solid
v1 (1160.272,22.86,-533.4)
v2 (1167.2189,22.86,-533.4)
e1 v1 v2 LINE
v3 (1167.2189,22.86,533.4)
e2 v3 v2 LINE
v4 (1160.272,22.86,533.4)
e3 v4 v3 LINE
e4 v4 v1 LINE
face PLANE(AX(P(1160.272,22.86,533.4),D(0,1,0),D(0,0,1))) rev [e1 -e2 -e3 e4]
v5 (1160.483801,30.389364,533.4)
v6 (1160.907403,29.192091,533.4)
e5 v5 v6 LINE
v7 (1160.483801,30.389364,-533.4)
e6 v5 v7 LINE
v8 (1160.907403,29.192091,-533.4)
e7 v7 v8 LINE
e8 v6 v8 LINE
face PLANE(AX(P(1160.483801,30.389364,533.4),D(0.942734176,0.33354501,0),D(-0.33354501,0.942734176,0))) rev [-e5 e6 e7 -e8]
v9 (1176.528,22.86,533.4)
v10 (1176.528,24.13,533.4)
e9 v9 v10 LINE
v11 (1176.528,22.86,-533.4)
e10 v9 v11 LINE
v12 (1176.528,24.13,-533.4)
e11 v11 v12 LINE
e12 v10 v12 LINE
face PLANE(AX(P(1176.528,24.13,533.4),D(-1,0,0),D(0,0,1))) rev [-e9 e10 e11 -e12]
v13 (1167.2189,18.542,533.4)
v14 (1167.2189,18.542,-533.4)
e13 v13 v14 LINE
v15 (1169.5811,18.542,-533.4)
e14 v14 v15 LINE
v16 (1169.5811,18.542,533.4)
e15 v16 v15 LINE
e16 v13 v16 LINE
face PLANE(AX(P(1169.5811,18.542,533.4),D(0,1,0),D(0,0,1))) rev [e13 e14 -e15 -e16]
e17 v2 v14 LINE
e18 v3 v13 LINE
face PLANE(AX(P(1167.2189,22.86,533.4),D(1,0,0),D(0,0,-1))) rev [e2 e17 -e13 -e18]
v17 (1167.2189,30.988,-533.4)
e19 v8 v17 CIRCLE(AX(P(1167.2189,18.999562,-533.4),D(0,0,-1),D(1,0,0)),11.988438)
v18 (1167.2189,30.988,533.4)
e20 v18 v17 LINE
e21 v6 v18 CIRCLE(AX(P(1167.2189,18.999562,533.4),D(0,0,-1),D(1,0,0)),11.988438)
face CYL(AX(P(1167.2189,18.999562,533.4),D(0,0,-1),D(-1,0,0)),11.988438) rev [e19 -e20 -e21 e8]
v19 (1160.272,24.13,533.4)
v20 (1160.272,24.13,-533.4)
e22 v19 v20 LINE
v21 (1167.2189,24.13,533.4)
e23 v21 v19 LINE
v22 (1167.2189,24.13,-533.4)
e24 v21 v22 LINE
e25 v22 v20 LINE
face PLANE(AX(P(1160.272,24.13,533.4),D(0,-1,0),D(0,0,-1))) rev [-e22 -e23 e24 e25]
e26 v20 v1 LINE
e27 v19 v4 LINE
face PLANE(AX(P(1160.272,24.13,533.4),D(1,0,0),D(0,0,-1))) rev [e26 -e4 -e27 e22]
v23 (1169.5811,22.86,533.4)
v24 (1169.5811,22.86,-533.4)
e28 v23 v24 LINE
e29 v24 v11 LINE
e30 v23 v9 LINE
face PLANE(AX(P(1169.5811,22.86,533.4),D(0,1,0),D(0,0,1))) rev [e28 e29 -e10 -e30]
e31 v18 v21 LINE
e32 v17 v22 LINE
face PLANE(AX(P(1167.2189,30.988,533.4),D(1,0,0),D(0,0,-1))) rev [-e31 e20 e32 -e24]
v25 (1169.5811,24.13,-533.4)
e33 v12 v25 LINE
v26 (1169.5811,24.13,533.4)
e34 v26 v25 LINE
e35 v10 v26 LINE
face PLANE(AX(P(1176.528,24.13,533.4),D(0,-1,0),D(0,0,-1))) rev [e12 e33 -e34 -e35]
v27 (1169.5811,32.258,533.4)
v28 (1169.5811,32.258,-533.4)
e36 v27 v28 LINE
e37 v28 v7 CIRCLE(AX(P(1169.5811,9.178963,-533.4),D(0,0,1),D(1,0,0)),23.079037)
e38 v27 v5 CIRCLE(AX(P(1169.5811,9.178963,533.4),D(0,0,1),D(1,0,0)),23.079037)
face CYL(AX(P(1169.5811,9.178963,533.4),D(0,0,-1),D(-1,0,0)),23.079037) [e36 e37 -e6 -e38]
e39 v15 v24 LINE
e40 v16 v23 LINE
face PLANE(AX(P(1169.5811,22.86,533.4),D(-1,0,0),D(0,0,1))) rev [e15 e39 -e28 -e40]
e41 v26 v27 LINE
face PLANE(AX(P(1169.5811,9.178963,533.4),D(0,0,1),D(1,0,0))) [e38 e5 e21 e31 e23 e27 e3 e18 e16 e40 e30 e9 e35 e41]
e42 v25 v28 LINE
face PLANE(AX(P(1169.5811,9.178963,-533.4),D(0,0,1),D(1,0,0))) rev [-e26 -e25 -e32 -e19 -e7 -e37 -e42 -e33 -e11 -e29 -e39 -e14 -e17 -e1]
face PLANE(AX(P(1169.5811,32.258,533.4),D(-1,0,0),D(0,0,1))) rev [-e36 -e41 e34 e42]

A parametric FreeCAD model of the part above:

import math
import FreeCAD as App
import Part
import Sketcher
from FreeCAD import Vector
Q = App.Units.Quantity

doc = App.newDocument("Part")
params = doc.addObject("Spreadsheet::Sheet", "Params")
for row, (alias, value) in enumerate([
    ("sketch1_height", "0.17 in"),
    ("sketch1_height2", "0.05 in"),
    ("sketch1_height3", "0.32 in"),
    ("sketch1_height4", "0.27 in"),
    ("sketch1_length", "0.05 in"),
    ("pad1_length", "42 in"),
], start=1):
    params.set(f"A{row}", alias)
    params.set(f"B{row}", "=" + value)
    params.setAlias(f"B{row}", alias)

body = doc.addObject("PartDesign::Body", "Body")

# Sketch on XY plane
sketch1 = body.newObject("Sketcher::SketchObject", "Sketch")
sketch1.AttachmentSupport = (doc.getObject("XY_Plane"), [""])
sketch1.MapMode = "FlatFace"
sketch1.addGeometry(Part.LineSegment(Vector(1169.5811, 18.542, 0), Vector(1169.5811, 22.86, 0)), False)
sketch1.addGeometry(Part.LineSegment(Vector(1169.5811, 22.86, 0), Vector(1176.528, 22.86, 0)), False)
sketch1.addGeometry(Part.LineSegment(Vector(1176.528, 22.86, 0), Vector(1176.528, 24.13, 0)), False)
sketch1.addGeometry(Part.LineSegment(Vector(1176.528, 24.13, 0), Vector(1169.5811, 24.13, 0)), False)
sketch1.addGeometry(Part.LineSegment(Vector(1169.5811, 24.13, 0), Vector(1169.5811, 32.258, 0)), False)
sketch1.addGeometry(Part.ArcOfCircle(Part.Circle(Vector(1169.5811, 9.178963, 0), Vector(0, 0, 1), 23.079037), math.radians(90), math.radians(113.214853)), False)
sketch1.addGeometry(Part.LineSegment(Vector(1160.483801, 30.389364, 0), Vector(1160.907403, 29.192091, 0)), False)
sketch1.addGeometry(Part.ArcOfCircle(Part.Circle(Vector(1167.2189, 18.999562, 0), Vector(0, 0, 1), 11.988438), math.radians(90), math.radians(121.766939)), False)
sketch1.addGeometry(Part.LineSegment(Vector(1167.2189, 30.988, 0), Vector(1167.2189, 24.13, 0)), False)
sketch1.addGeometry(Part.LineSegment(Vector(1167.2189, 24.13, 0), Vector(1160.272, 24.13, 0)), False)
sketch1.addGeometry(Part.LineSegment(Vector(1160.272, 24.13, 0), Vector(1160.272, 22.86, 0)), False)
sketch1.addGeometry(Part.LineSegment(Vector(1160.272, 22.86, 0), Vector(1167.2189, 22.86, 0)), False)
sketch1.addGeometry(Part.LineSegment(Vector(1167.2189, 22.86, 0), Vector(1167.2189, 18.542, 0)), False)
sketch1.addGeometry(Part.LineSegment(Vector(1167.2189, 18.542, 0), Vector(1169.5811, 18.542, 0)), False)
sketch1.addConstraint(Sketcher.Constraint("Coincident", 0, 2, 1, 1))
sketch1.addConstraint(Sketcher.Constraint("Coincident", 1, 2, 2, 1))
sketch1.addConstraint(Sketcher.Constraint("Coincident", 2, 2, 3, 1))
sketch1.addConstraint(Sketcher.Constraint("Coincident", 3, 2, 4, 1))
sketch1.addConstraint(Sketcher.Constraint("Coincident", 4, 2, 5, 1))
sketch1.addConstraint(Sketcher.Constraint("Coincident", 5, 2, 6, 1))
sketch1.addConstraint(Sketcher.Constraint("Coincident", 6, 2, 7, 2))
sketch1.addConstraint(Sketcher.Constraint("Coincident", 7, 1, 8, 1))
sketch1.addConstraint(Sketcher.Constraint("Coincident", 8, 2, 9, 1))
sketch1.addConstraint(Sketcher.Constraint("Coincident", 9, 2, 10, 1))
sketch1.addConstraint(Sketcher.Constraint("Coincident", 10, 2, 11, 1))
sketch1.addConstraint(Sketcher.Constraint("Coincident", 11, 2, 12, 1))
sketch1.addConstraint(Sketcher.Constraint("Coincident", 12, 2, 13, 1))
sketch1.addConstraint(Sketcher.Constraint("Coincident", 13, 2, 0, 1))
sketch1.addConstraint(Sketcher.Constraint("Vertical", 0))
sketch1.addConstraint(Sketcher.Constraint("Horizontal", 1))
sketch1.addConstraint(Sketcher.Constraint("Vertical", 2))
sketch1.addConstraint(Sketcher.Constraint("Horizontal", 3))
sketch1.addConstraint(Sketcher.Constraint("Vertical", 4))
sketch1.addConstraint(Sketcher.Constraint("Vertical", 8))
sketch1.addConstraint(Sketcher.Constraint("Horizontal", 9))
sketch1.addConstraint(Sketcher.Constraint("Vertical", 10))
sketch1.addConstraint(Sketcher.Constraint("Horizontal", 11))
sketch1.addConstraint(Sketcher.Constraint("Vertical", 12))
sketch1.addConstraint(Sketcher.Constraint("Horizontal", 13))
sketch1.addConstraint(Sketcher.Constraint("Horizontal", 3, 2, 8, 2))
sketch1.addConstraint(Sketcher.Constraint("Horizontal", 1, 2, 10, 2))
sketch1.addConstraint(Sketcher.Constraint("Vertical", 5, 3, 0, 2))
sketch1.addConstraint(Sketcher.Constraint("Vertical", 0, 2, 3, 2))
sketch1.addConstraint(Sketcher.Constraint("Vertical", 8, 2, 11, 2))
sketch1.addConstraint(Sketcher.Constraint("Equal", 3, 9))
sketch1.addConstraint(Sketcher.Constraint("DistanceY", 0, 1, 0, 2, Q("0.17 in")))
sketch1.addConstraint(Sketcher.Constraint("DistanceY", 2, 1, 2, 2, Q("0.05 in")))
sketch1.addConstraint(Sketcher.Constraint("DistanceY", 4, 1, 4, 2, Q("0.32 in")))
sketch1.addConstraint(Sketcher.Constraint("DistanceY", 8, 2, 8, 1, Q("0.27 in")))
sketch1.addConstraint(Sketcher.Constraint("DistanceY", -1, 1, 0, 2, Q("0.9 in")))
sketch1.addConstraint(Sketcher.Constraint("Distance", 6, Q("0.05 in")))
sketch1.addConstraint(Sketcher.Constraint("DistanceX", 13, 1, 13, 2, Q("0.093 in")))
sketch1.addConstraint(Sketcher.Constraint("DistanceX", -1, 1, 1, 2, Q("46.32 in")))
sketch1.addConstraint(Sketcher.Constraint("DistanceX", -1, 1, 9, 2, Q("45.68 in")))
sketch1.addConstraint(Sketcher.Constraint("Radius", 7, Q("11.988438 mm")))
sketch1.addConstraint(Sketcher.Constraint("DistanceX", 7, 3, 5, 3, Q("0.093 in")))
sketch1.addConstraint(Sketcher.Constraint("Radius", 5, Q("23.079037 mm")))
sketch1.addConstraint(Sketcher.Constraint("DistanceX", -1, 1, 5, 2, Q("1160.483801 mm")))
sketch1.setExpression("Constraints[31]", "Params.sketch1_height")
sketch1.setExpression("Constraints[32]", "Params.sketch1_height2")
sketch1.setExpression("Constraints[33]", "Params.sketch1_height3")
sketch1.setExpression("Constraints[34]", "Params.sketch1_height4")
sketch1.setExpression("Constraints[36]", "Params.sketch1_length")
pad1 = body.newObject("PartDesign::Pad", "Pad")
pad1.Profile = sketch1
pad1.setExpression("Length", "Params.pad1_length")
pad1.Midplane = True

doc.recompute()
